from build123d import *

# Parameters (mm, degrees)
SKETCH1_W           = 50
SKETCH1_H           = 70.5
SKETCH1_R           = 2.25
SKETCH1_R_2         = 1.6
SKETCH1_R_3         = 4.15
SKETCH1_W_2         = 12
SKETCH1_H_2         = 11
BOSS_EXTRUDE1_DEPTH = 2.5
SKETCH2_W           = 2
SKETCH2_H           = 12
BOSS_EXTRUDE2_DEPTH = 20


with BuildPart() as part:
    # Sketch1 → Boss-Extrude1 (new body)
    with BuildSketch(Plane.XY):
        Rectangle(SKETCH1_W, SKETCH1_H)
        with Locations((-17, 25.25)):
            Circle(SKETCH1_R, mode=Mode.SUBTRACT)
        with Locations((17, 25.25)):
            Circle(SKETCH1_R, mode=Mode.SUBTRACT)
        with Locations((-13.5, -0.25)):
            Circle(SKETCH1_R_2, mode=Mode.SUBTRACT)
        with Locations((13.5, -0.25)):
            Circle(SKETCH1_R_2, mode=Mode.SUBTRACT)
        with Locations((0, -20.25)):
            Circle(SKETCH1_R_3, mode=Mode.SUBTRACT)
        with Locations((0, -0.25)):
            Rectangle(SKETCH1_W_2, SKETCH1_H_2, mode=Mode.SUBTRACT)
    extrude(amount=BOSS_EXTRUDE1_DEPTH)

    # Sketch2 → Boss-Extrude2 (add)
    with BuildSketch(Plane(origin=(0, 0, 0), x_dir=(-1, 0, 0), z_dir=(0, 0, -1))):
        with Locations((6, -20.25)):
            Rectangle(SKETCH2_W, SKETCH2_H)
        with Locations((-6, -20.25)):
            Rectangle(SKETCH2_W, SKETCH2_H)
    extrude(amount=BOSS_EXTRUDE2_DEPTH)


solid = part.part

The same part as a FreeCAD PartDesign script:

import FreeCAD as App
import Part
import Sketcher

V = App.Vector
Q = App.Units.Quantity

doc = App.newDocument("Part")
body = doc.addObject("PartDesign::Body", "Body")

sketch1 = body.newObject("Sketcher::SketchObject", "Sketch")
sketch1.AttachmentSupport = (doc.getObject("XY_Plane"), [""])
sketch1.MapMode = "FlatFace"
sketch1.addGeometry(Part.LineSegment(V(-25, 35.2, 0), V(-25, -35.2, 0)), False)
sketch1.addGeometry(Part.LineSegment(V(-25, -35.2, 0), V(25, -35.2, 0)), False)
sketch1.addGeometry(Part.LineSegment(V(25, -35.2, 0), V(25, 35.2, 0)), False)
sketch1.addGeometry(Part.LineSegment(V(25, 35.2, 0), V(-25, 35.2, 0)), False)
sketch1.addGeometry(Part.Circle(V(-13.5, -0.2, 0), V(0, 0, 1), 1.6), False)
sketch1.addGeometry(Part.Circle(V(0, -20.2, 0), V(0, 0, 1), 4.2), False)
sketch1.addGeometry(Part.LineSegment(V(6, -5.8, 0), V(-6, -5.8, 0)), False)
sketch1.addGeometry(Part.LineSegment(V(-6, -5.8, 0), V(-6, 5.2, 0)), False)
sketch1.addGeometry(Part.LineSegment(V(-6, 5.2, 0), V(6, 5.2, 0)), False)
sketch1.addGeometry(Part.LineSegment(V(6, 5.2, 0), V(6, -5.8, 0)), False)
sketch1.addGeometry(Part.Circle(V(13.5, -0.2, 0), V(0, 0, 1), 1.6), False)
sketch1.addGeometry(Part.Circle(V(-17, 25.2, 0), V(0, 0, 1), 2.2), False)
sketch1.addGeometry(Part.Circle(V(17, 25.2, 0), V(0, 0, 1), 2.2), False)
sketch1.addConstraint(Sketcher.Constraint("Coincident", 0, 2, 1, 1))
sketch1.addConstraint(Sketcher.Constraint("Coincident", 1, 2, 2, 1))
sketch1.addConstraint(Sketcher.Constraint("Coincident", 2, 2, 3, 1))
sketch1.addConstraint(Sketcher.Constraint("Coincident", 3, 2, 0, 1))
sketch1.addConstraint(Sketcher.Constraint("Coincident", 6, 2, 7, 1))
sketch1.addConstraint(Sketcher.Constraint("Coincident", 7, 2, 8, 1))
sketch1.addConstraint(Sketcher.Constraint("Coincident", 8, 2, 9, 1))
sketch1.addConstraint(Sketcher.Constraint("Coincident", 9, 2, 6, 1))
sketch1.addConstraint(Sketcher.Constraint("Vertical", 0))
sketch1.addConstraint(Sketcher.Constraint("Horizontal", 1))
sketch1.addConstraint(Sketcher.Constraint("Vertical", 2))
sketch1.addConstraint(Sketcher.Constraint("Horizontal", 3))
sketch1.addConstraint(Sketcher.Constraint("Horizontal", 6))
sketch1.addConstraint(Sketcher.Constraint("Vertical", 7))
sketch1.addConstraint(Sketcher.Constraint("Horizontal", 8))
sketch1.addConstraint(Sketcher.Constraint("Vertical", 9))
sketch1.addConstraint(Sketcher.Constraint("Equal", 4, 10))
sketch1.addConstraint(Sketcher.Constraint("Equal", 11, 12))
sketch1.addConstraint(Sketcher.Constraint("Symmetric", 0, 2, 2, 2, -1, 1))
sketch1.addConstraint(Sketcher.Constraint("Symmetric", 4, 3, 10, 3, -2))
sketch1.addConstraint(Sketcher.Constraint("Symmetric", 11, 3, 12, 3, -2))
sketch1.addConstraint(Sketcher.Constraint("PointOnObject", 5, 3, -2))
sketch1.addConstraint(Sketcher.Constraint("Diameter", 4, Q("3.2 mm")))
sketch1.addConstraint(Sketcher.Constraint("Diameter", 5, Q("8.3 mm")))
sketch1.addConstraint(Sketcher.Constraint("Diameter", 11, Q("4.5 mm")))
sketch1.addConstraint(Sketcher.Constraint("DistanceX", 1, 1, 1, 2, Q("50 mm")))
sketch1.addConstraint(Sketcher.Constraint("DistanceX", 6, 2, 6, 1, Q("12 mm")))
sketch1.addConstraint(Sketcher.Constraint("DistanceY", 7, 1, 7, 2, Q("11 mm")))
sketch1.addConstraint(Sketcher.Constraint("DistanceY", 0, 2, 0, 1, Q("70.5 mm")))
sketch1.addConstraint(Sketcher.Constraint("DistanceX", 11, 3, -1, 1, Q("17 mm")))
sketch1.addConstraint(Sketcher.Constraint("DistanceX", 6, 2, -1, 1, Q("6 mm")))
sketch1.addConstraint(Sketcher.Constraint("DistanceY", 5, 3, 4, 3, Q("20 mm")))
sketch1.addConstraint(Sketcher.Constraint("DistanceX", 4, 3, 10, 3, Q("27 mm")))
sketch1.addConstraint(Sketcher.Constraint("DistanceY", 0, 2, 5, 3, Q("15 mm")))
sketch1.addConstraint(Sketcher.Constraint("DistanceY", 12, 3, 2, 2, Q("10 mm")))
sketch1.addConstraint(Sketcher.Constraint("DistanceY", 6, 2, 11, 3, Q("31 mm")))
pad1 = body.newObject("PartDesign::Pad", "Pad")
pad1.Profile = sketch1
pad1.Length = 2.5

sketch2 = body.newObject("Sketcher::SketchObject", "Sketch001")
sketch2.AttachmentSupport = (doc.getObject("XY_Plane"), [""])
sketch2.MapMode = "FlatFace"
sketch2.addGeometry(Part.LineSegment(V(-5, -14.2, 0), V(-5, -26.2, 0)), False)
sketch2.addGeometry(Part.LineSegment(V(-5, -26.2, 0), V(-7, -26.2, 0)), False)
sketch2.addGeometry(Part.LineSegment(V(-7, -26.2, 0), V(-7, -14.2, 0)), False)
sketch2.addGeometry(Part.LineSegment(V(-7, -14.2, 0), V(-5, -14.2, 0)), False)
sketch2.addGeometry(Part.LineSegment(V(7, -14.2, 0), V(7, -26.2, 0)), False)
sketch2.addGeometry(Part.LineSegment(V(7, -26.2, 0), V(5, -26.2, 0)), False)
sketch2.addGeometry(Part.LineSegment(V(5, -26.2, 0), V(5, -14.2, 0)), False)
sketch2.addGeometry(Part.LineSegment(V(5, -14.2, 0), V(7, -14.2, 0)), False)
sketch2.addConstraint(Sketcher.Constraint("Coincident", 0, 2, 1, 1))
sketch2.addConstraint(Sketcher.Constraint("Coincident", 1, 2, 2, 1))
sketch2.addConstraint(Sketcher.Constraint("Coincident", 2, 2, 3, 1))
sketch2.addConstraint(Sketcher.Constraint("Coincident", 3, 2, 0, 1))
sketch2.addConstraint(Sketcher.Constraint("Coincident", 4, 2, 5, 1))
sketch2.addConstraint(Sketcher.Constraint("Coincident", 5, 2, 6, 1))
sketch2.addConstraint(Sketcher.Constraint("Coincident", 6, 2, 7, 1))
sketch2.addConstraint(Sketcher.Constraint("Coincident", 7, 2, 4, 1))
sketch2.addConstraint(Sketcher.Constraint("Vertical", 0))
sketch2.addConstraint(Sketcher.Constraint("Horizontal", 1))
sketch2.addConstraint(Sketcher.Constraint("Vertical", 2))
sketch2.addConstraint(Sketcher.Constraint("Horizontal", 3))
sketch2.addConstraint(Sketcher.Constraint("Vertical", 4))
sketch2.addConstraint(Sketcher.Constraint("Horizontal", 5))
sketch2.addConstraint(Sketcher.Constraint("Vertical", 6))
sketch2.addConstraint(Sketcher.Constraint("Horizontal", 7))
sketch2.addConstraint(Sketcher.Constraint("Symmetric", 1, 2, 4, 2, -2))
sketch2.addConstraint(Sketcher.Constraint("Symmetric", 3, 2, 6, 2, -2))
sketch2.addConstraint(Sketcher.Constraint("DistanceX", 1, 2, 1, 1, Q("2 mm")))
sketch2.addConstraint(Sketcher.Constraint("DistanceY", 0, 2, 0, 1, Q("12 mm")))
sketch2.addConstraint(Sketcher.Constraint("DistanceX", 0, 2, -1, 1, Q("5 mm")))
sketch2.addConstraint(Sketcher.Constraint("DistanceY", 0, 2, -1, 1, Q("26.25 mm")))
pad2 = body.newObject("PartDesign::Pad", "Pad001")
pad2.Profile = sketch2
pad2.Length = 20
pad2.Reversed = True

doc.recompute()
